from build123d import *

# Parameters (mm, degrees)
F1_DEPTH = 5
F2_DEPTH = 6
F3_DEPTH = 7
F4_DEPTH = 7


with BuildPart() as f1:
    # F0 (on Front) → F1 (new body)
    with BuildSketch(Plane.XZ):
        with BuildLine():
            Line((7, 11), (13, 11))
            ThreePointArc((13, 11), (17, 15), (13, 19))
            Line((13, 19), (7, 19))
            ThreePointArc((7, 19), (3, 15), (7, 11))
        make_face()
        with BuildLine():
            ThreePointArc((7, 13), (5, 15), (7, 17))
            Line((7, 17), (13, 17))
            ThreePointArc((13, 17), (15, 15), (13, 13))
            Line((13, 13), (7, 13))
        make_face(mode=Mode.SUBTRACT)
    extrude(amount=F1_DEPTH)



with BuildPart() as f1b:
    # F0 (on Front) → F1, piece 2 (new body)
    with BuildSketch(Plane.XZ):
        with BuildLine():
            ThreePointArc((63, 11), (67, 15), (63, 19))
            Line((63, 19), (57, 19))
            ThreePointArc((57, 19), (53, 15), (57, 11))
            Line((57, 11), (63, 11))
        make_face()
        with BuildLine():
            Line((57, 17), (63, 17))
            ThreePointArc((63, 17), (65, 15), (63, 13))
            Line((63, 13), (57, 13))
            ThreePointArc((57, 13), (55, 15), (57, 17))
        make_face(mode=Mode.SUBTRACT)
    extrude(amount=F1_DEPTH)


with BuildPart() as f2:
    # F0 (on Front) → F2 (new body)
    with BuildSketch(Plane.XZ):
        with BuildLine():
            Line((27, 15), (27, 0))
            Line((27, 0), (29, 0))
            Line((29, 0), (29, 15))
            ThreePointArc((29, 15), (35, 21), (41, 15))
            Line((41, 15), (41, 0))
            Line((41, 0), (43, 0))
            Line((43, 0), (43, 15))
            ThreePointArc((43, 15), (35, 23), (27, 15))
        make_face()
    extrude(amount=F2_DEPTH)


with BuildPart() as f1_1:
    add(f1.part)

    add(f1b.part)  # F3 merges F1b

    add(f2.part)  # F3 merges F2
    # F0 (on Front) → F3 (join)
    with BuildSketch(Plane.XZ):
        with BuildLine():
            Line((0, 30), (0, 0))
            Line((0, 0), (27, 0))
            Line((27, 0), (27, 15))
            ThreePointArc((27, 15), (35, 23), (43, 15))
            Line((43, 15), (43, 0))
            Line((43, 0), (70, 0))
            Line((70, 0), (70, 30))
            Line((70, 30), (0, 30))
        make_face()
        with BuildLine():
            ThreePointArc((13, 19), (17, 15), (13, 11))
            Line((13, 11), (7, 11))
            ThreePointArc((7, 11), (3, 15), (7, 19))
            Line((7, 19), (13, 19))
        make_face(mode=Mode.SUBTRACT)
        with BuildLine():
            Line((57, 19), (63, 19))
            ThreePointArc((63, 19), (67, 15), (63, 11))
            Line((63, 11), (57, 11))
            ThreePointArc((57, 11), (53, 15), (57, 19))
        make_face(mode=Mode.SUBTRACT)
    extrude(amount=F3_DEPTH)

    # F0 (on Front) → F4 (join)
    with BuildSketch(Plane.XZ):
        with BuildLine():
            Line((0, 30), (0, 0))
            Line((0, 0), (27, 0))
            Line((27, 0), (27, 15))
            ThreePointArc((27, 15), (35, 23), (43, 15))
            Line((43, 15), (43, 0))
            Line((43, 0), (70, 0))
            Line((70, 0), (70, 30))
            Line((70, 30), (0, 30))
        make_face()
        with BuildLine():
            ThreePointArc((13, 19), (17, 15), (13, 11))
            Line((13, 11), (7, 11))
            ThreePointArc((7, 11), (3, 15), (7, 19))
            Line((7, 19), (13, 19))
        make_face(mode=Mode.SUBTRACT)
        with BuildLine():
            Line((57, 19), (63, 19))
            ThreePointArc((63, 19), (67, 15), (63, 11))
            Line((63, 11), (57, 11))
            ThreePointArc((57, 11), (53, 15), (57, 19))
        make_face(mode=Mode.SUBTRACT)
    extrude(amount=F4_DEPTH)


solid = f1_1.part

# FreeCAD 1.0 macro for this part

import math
import FreeCAD as App
import Part
import Sketcher

V = App.Vector
Q = App.Units.Quantity

doc = App.newDocument("Part")
body = doc.addObject("PartDesign::Body", "Body")

# Sketch on XZ plane
sketch1 = body.newObject("Sketcher::SketchObject", "Sketch")
sketch1.AttachmentSupport = (doc.getObject("XZ_Plane"), [""])
sketch1.MapMode = "FlatFace"
sketch1.addGeometry(Part.LineSegment(V(7, 11, 0), V(13, 11, 0)), False)
sketch1.addGeometry(Part.ArcOfCircle(Part.Circle(V(13, 15, 0), V(0, 0, 1), 4), math.radians(-90), math.radians(90)), False)
sketch1.addGeometry(Part.LineSegment(V(13, 19, 0), V(7, 19, 0)), False)
sketch1.addGeometry(Part.ArcOfCircle(Part.Circle(V(7, 15, 0), V(0, 0, 1), 4), math.radians(90), math.radians(270)), False)
sketch1.addGeometry(Part.LineSegment(V(13, 13, 0), V(7, 13, 0)), False)
sketch1.addGeometry(Part.ArcOfCircle(Part.Circle(V(7, 15, 0), V(0, 0, 1), 2), math.radians(90), math.radians(270)), False)
sketch1.addGeometry(Part.LineSegment(V(7, 17, 0), V(13, 17, 0)), False)
sketch1.addGeometry(Part.ArcOfCircle(Part.Circle(V(13, 15, 0), V(0, 0, 1), 2), math.radians(-90), math.radians(90)), False)
sketch1.addConstraint(Sketcher.Constraint("Tangent", 0, 2, 1, 1))
sketch1.addConstraint(Sketcher.Constraint("Tangent", 1, 2, 2, 1))
sketch1.addConstraint(Sketcher.Constraint("Tangent", 2, 2, 3, 1))
sketch1.addConstraint(Sketcher.Constraint("Tangent", 3, 2, 0, 1))
sketch1.addConstraint(Sketcher.Constraint("Tangent", 4, 2, 5, 2))
sketch1.addConstraint(Sketcher.Constraint("Tangent", 5, 1, 6, 1))
sketch1.addConstraint(Sketcher.Constraint("Tangent", 6, 2, 7, 2))
sketch1.addConstraint(Sketcher.Constraint("Tangent", 7, 1, 4, 1))
sketch1.addConstraint(Sketcher.Constraint("Horizontal", 0))
sketch1.addConstraint(Sketcher.Constraint("Horizontal", 2))
sketch1.addConstraint(Sketcher.Constraint("Horizontal", 4))
sketch1.addConstraint(Sketcher.Constraint("Horizontal", 6))
sketch1.addConstraint(Sketcher.Constraint("Coincident", 5, 3, 3, 3))
sketch1.addConstraint(Sketcher.Constraint("Vertical", 7, 3, 0, 2))
sketch1.addConstraint(Sketcher.Constraint("Radius", 1, Q("4 mm")))
sketch1.addConstraint(Sketcher.Constraint("Radius", 5, Q("2 mm")))
sketch1.addConstraint(Sketcher.Constraint("DistanceX", 0, 1, 0, 2, Q("6 mm")))
sketch1.addConstraint(Sketcher.Constraint("DistanceX", -1, 1, 1, 3, Q("13 mm")))
sketch1.addConstraint(Sketcher.Constraint("DistanceY", -1, 1, 1, 3, Q("15 mm")))
pad1 = body.newObject("PartDesign::Pad", "Pad")
pad1.Profile = sketch1
pad1.Length = 5
body2 = doc.addObject("PartDesign::Body", "Body001")

# Sketch on XZ plane
sketch2 = body2.newObject("Sketcher::SketchObject", "Sketch001")
sketch2.AttachmentSupport = (doc.getObject("XZ_Plane001"), [""])
sketch2.MapMode = "FlatFace"
sketch2.addGeometry(Part.ArcOfCircle(Part.Circle(V(63, 15, 0), V(0, 0, 1), 4), math.radians(-90), math.radians(90)), False)
sketch2.addGeometry(Part.LineSegment(V(63, 19, 0), V(57, 19, 0)), False)
sketch2.addGeometry(Part.ArcOfCircle(Part.Circle(V(57, 15, 0), V(0, 0, 1), 4), math.radians(90), math.radians(270)), False)
sketch2.addGeometry(Part.LineSegment(V(57, 11, 0), V(63, 11, 0)), False)
sketch2.addGeometry(Part.ArcOfCircle(Part.Circle(V(57, 15, 0), V(0, 0, 1), 2), math.radians(90), math.radians(270)), False)
sketch2.addGeometry(Part.LineSegment(V(57, 17, 0), V(63, 17, 0)), False)
sketch2.addGeometry(Part.ArcOfCircle(Part.Circle(V(63, 15, 0), V(0, 0, 1), 2), math.radians(-90), math.radians(90)), False)
sketch2.addGeometry(Part.LineSegment(V(63, 13, 0), V(57, 13, 0)), False)
sketch2.addConstraint(Sketcher.Constraint("Tangent", 0, 2, 1, 1))
sketch2.addConstraint(Sketcher.Constraint("Tangent", 1, 2, 2, 1))
sketch2.addConstraint(Sketcher.Constraint("Tangent", 2, 2, 3, 1))
sketch2.addConstraint(Sketcher.Constraint("Tangent", 3, 2, 0, 1))
sketch2.addConstraint(Sketcher.Constraint("Tangent", 4, 1, 5, 1))
sketch2.addConstraint(Sketcher.Constraint("Tangent", 5, 2, 6, 2))
sketch2.addConstraint(Sketcher.Constraint("Tangent", 6, 1, 7, 1))
sketch2.addConstraint(Sketcher.Constraint("Tangent", 7, 2, 4, 2))
sketch2.addConstraint(Sketcher.Constraint("Horizontal", 1))
sketch2.addConstraint(Sketcher.Constraint("Horizontal", 3))
sketch2.addConstraint(Sketcher.Constraint("Horizontal", 5))
sketch2.addConstraint(Sketcher.Constraint("Horizontal", 7))
sketch2.addConstraint(Sketcher.Constraint("Coincident", 4, 3, 2, 3))
sketch2.addConstraint(Sketcher.Constraint("Vertical", 6, 3, 0, 2))
sketch2.addConstraint(Sketcher.Constraint("Radius", 0, Q("4 mm")))
sketch2.addConstraint(Sketcher.Constraint("Radius", 4, Q("2 mm")))
sketch2.addConstraint(Sketcher.Constraint("DistanceX", 1, 2, 1, 1, Q("6 mm")))
sketch2.addConstraint(Sketcher.Constraint("DistanceX", -1, 1, 0, 3, Q("63 mm")))
sketch2.addConstraint(Sketcher.Constraint("DistanceY", -1, 1, 0, 3, Q("15 mm")))
pad2 = body2.newObject("PartDesign::Pad", "Pad001")
pad2.Profile = sketch2
pad2.Length = 5
body3 = doc.addObject("PartDesign::Body", "Body002")

# Sketch on XZ plane
sketch3 = body3.newObject("Sketcher::SketchObject", "Sketch002")
sketch3.AttachmentSupport = (doc.getObject("XZ_Plane002"), [""])
sketch3.MapMode = "FlatFace"
sketch3.addGeometry(Part.LineSegment(V(27, 15, 0), V(27, 0, 0)), False)
sketch3.addGeometry(Part.LineSegment(V(27, 0, 0), V(29, 0, 0)), False)
sketch3.addGeometry(Part.LineSegment(V(29, 0, 0), V(29, 15, 0)), False)
sketch3.addGeometry(Part.ArcOfCircle(Part.Circle(V(35, 15, 0), V(0, 0, 1), 6), math.radians(0), math.radians(180)), False)
sketch3.addGeometry(Part.LineSegment(V(41, 15, 0), V(41, 0, 0)), False)
sketch3.addGeometry(Part.LineSegment(V(41, 0, 0), V(43, 0, 0)), False)
sketch3.addGeometry(Part.LineSegment(V(43, 0, 0), V(43, 15, 0)), False)
sketch3.addGeometry(Part.ArcOfCircle(Part.Circle(V(35, 15, 0), V(0, 0, 1), 8), math.radians(0), math.radians(180)), False)
sketch3.addConstraint(Sketcher.Constraint("Coincident", 0, 2, 1, 1))
sketch3.addConstraint(Sketcher.Constraint("Coincident", 1, 2, 2, 1))
sketch3.addConstraint(Sketcher.Constraint("Tangent", 2, 2, 3, 2))
sketch3.addConstraint(Sketcher.Constraint("Tangent", 3, 1, 4, 1))
sketch3.addConstraint(Sketcher.Constraint("Coincident", 4, 2, 5, 1))
sketch3.addConstraint(Sketcher.Constraint("Coincident", 5, 2, 6, 1))
sketch3.addConstraint(Sketcher.Constraint("Tangent", 6, 2, 7, 1))
sketch3.addConstraint(Sketcher.Constraint("Tangent", 7, 2, 0, 1))
sketch3.addConstraint(Sketcher.Constraint("Vertical", 0))
sketch3.addConstraint(Sketcher.Constraint("Horizontal", 1))
sketch3.addConstraint(Sketcher.Constraint("Vertical", 2))
sketch3.addConstraint(Sketcher.Constraint("Vertical", 4))
sketch3.addConstraint(Sketcher.Constraint("Horizontal", 5))
sketch3.addConstraint(Sketcher.Constraint("Vertical", 6))
sketch3.addConstraint(Sketcher.Constraint("Coincident", 7, 3, 3, 3))
sketch3.addConstraint(Sketcher.Constraint("PointOnObject", 0, 2, -1))
sketch3.addConstraint(Sketcher.Constraint("PointOnObject", 4, 2, -1))
sketch3.addConstraint(Sketcher.Constraint("Radius", 3, Q("6 mm")))
sketch3.addConstraint(Sketcher.Constraint("Radius", 7, Q("8 mm")))
sketch3.addConstraint(Sketcher.Constraint("DistanceY", 0, 2, 0, 1, Q("15 mm")))
sketch3.addConstraint(Sketcher.Constraint("DistanceX", -1, 1, 3, 3, Q("35 mm")))
pad3 = body3.newObject("PartDesign::Pad", "Pad002")
pad3.Profile = sketch3
pad3.Length = 6
body.AllowCompound = True
doc.recompute()

boolean = body.newObject("PartDesign::Boolean", "Boolean")
boolean.Type = "Fuse"
boolean.addObjects([body2])
doc.recompute()

boolean2 = body.newObject("PartDesign::Boolean", "Boolean001")
boolean2.Type = "Fuse"
boolean2.addObjects([body3])

# Sketch on XZ plane
sketch4 = body.newObject("Sketcher::SketchObject", "Sketch003")
sketch4.AttachmentSupport = (doc.getObject("XZ_Plane"), [""])
sketch4.MapMode = "FlatFace"
sketch4.addGeometry(Part.LineSegment(V(0, 30, 0), V(0, 0, 0)), False)
sketch4.addGeometry(Part.LineSegment(V(0, 0, 0), V(27, 0, 0)), False)
sketch4.addGeometry(Part.LineSegment(V(27, 0, 0), V(27, 15, 0)), False)
sketch4.addGeometry(Part.ArcOfCircle(Part.Circle(V(35, 15, 0), V(0, 0, 1), 8), math.radians(0), math.radians(180)), False)
sketch4.addGeometry(Part.LineSegment(V(43, 15, 0), V(43, 0, 0)), False)
sketch4.addGeometry(Part.LineSegment(V(43, 0, 0), V(70, 0, 0)), False)
sketch4.addGeometry(Part.LineSegment(V(70, 0, 0), V(70, 30, 0)), False)
sketch4.addGeometry(Part.LineSegment(V(70, 30, 0), V(0, 30, 0)), False)
sketch4.addGeometry(Part.LineSegment(V(7, 19, 0), V(13, 19, 0)), False)
sketch4.addGeometry(Part.ArcOfCircle(Part.Circle(V(13, 15, 0), V(0, 0, 1), 4), math.radians(-90), math.radians(90)), False)
sketch4.addGeometry(Part.LineSegment(V(13, 11, 0), V(7, 11, 0)), False)
sketch4.addGeometry(Part.ArcOfCircle(Part.Circle(V(7, 15, 0), V(0, 0, 1), 4), math.radians(90), math.radians(270)), False)
sketch4.addGeometry(Part.ArcOfCircle(Part.Circle(V(57, 15, 0), V(0, 0, 1), 4), math.radians(90), math.radians(270)), False)
sketch4.addGeometry(Part.LineSegment(V(57, 19, 0), V(63, 19, 0)), False)
sketch4.addGeometry(Part.ArcOfCircle(Part.Circle(V(63, 15, 0), V(0, 0, 1), 4), math.radians(-90), math.radians(90)), False)
sketch4.addGeometry(Part.LineSegment(V(63, 11, 0), V(57, 11, 0)), False)
sketch4.addConstraint(Sketcher.Constraint("Coincident", 0, 2, 1, 1))
sketch4.addConstraint(Sketcher.Constraint("Coincident", 1, 2, 2, 1))
sketch4.addConstraint(Sketcher.Constraint("Tangent", 2, 2, 3, 2))
sketch4.addConstraint(Sketcher.Constraint("Tangent", 3, 1, 4, 1))
sketch4.addConstraint(Sketcher.Constraint("Coincident", 4, 2, 5, 1))
sketch4.addConstraint(Sketcher.Constraint("Coincident", 5, 2, 6, 1))
sketch4.addConstraint(Sketcher.Constraint("Coincident", 6, 2, 7, 1))
sketch4.addConstraint(Sketcher.Constraint("Coincident", 7, 2, 0, 1))
sketch4.addConstraint(Sketcher.Constraint("Tangent", 8, 2, 9, 2))
sketch4.addConstraint(Sketcher.Constraint("Tangent", 9, 1, 10, 1))
sketch4.addConstraint(Sketcher.Constraint("Tangent", 10, 2, 11, 2))
sketch4.addConstraint(Sketcher.Constraint("Tangent", 11, 1, 8, 1))
sketch4.addConstraint(Sketcher.Constraint("Tangent", 12, 1, 13, 1))
sketch4.addConstraint(Sketcher.Constraint("Tangent", 13, 2, 14, 2))
sketch4.addConstraint(Sketcher.Constraint("Tangent", 14, 1, 15, 1))
sketch4.addConstraint(Sketcher.Constraint("Tangent", 15, 2, 12, 2))
sketch4.addConstraint(Sketcher.Constraint("Vertical", 0))
sketch4.addConstraint(Sketcher.Constraint("Horizontal", 1))
sketch4.addConstraint(Sketcher.Constraint("Vertical", 2))
sketch4.addConstraint(Sketcher.Constraint("Vertical", 4))
sketch4.addConstraint(Sketcher.Constraint("Horizontal", 5))
sketch4.addConstraint(Sketcher.Constraint("Vertical", 6))
sketch4.addConstraint(Sketcher.Constraint("Horizontal", 7))
sketch4.addConstraint(Sketcher.Constraint("Horizontal", 8))
sketch4.addConstraint(Sketcher.Constraint("Horizontal", 10))
sketch4.addConstraint(Sketcher.Constraint("Horizontal", 13))
sketch4.addConstraint(Sketcher.Constraint("Horizontal", 15))
sketch4.addConstraint(Sketcher.Constraint("Coincident", 0, 2, -1, 1))
sketch4.addConstraint(Sketcher.Constraint("Equal", 11, 12))
sketch4.addConstraint(Sketcher.Constraint("PointOnObject", 4, 2, -1))
sketch4.addConstraint(Sketcher.Constraint("Horizontal", 3, 3, 9, 3))
sketch4.addConstraint(Sketcher.Constraint("Horizontal", 11, 3, 12, 3))
sketch4.addConstraint(Sketcher.Constraint("Equal", 1, 5))
sketch4.addConstraint(Sketcher.Constraint("Equal", 10, 13))
sketch4.addConstraint(Sketcher.Constraint("Radius", 3, Q("8 mm")))
sketch4.addConstraint(Sketcher.Constraint("Radius", 9, Q("4 mm")))
sketch4.addConstraint(Sketcher.Constraint("DistanceX", 1, 1, 1, 2, Q("27 mm")))
sketch4.addConstraint(Sketcher.Constraint("DistanceX", 8, 1, 8, 2, Q("6 mm")))
sketch4.addConstraint(Sketcher.Constraint("DistanceY", 0, 2, 0, 1, Q("30 mm")))
sketch4.addConstraint(Sketcher.Constraint("DistanceY", 2, 1, 2, 2, Q("15 mm")))
sketch4.addConstraint(Sketcher.Constraint("DistanceX", -1, 1, 9, 3, Q("13 mm")))
sketch4.addConstraint(Sketcher.Constraint("DistanceX", -1, 1, 12, 3, Q("57 mm")))
pad4 = body.newObject("PartDesign::Pad", "Pad003")
pad4.Profile = sketch4
pad4.Length = 7

# Sketch on XZ plane
sketch5 = body.newObject("Sketcher::SketchObject", "Sketch004")
sketch5.AttachmentSupport = (doc.getObject("XZ_Plane"), [""])
sketch5.MapMode = "FlatFace"
sketch5.addGeometry(Part.LineSegment(V(0, 30, 0), V(0, 0, 0)), False)
sketch5.addGeometry(Part.LineSegment(V(0, 0, 0), V(27, 0, 0)), False)
sketch5.addGeometry(Part.LineSegment(V(27, 0, 0), V(27, 15, 0)), False)
sketch5.addGeometry(Part.ArcOfCircle(Part.Circle(V(35, 15, 0), V(0, 0, 1), 8), math.radians(0), math.radians(180)), False)
sketch5.addGeometry(Part.LineSegment(V(43, 15, 0), V(43, 0, 0)), False)
sketch5.addGeometry(Part.LineSegment(V(43, 0, 0), V(70, 0, 0)), False)
sketch5.addGeometry(Part.LineSegment(V(70, 0, 0), V(70, 30, 0)), False)
sketch5.addGeometry(Part.LineSegment(V(70, 30, 0), V(0, 30, 0)), False)
sketch5.addGeometry(Part.LineSegment(V(7, 19, 0), V(13, 19, 0)), False)
sketch5.addGeometry(Part.ArcOfCircle(Part.Circle(V(13, 15, 0), V(0, 0, 1), 4), math.radians(-90), math.radians(90)), False)
sketch5.addGeometry(Part.LineSegment(V(13, 11, 0), V(7, 11, 0)), False)
sketch5.addGeometry(Part.ArcOfCircle(Part.Circle(V(7, 15, 0), V(0, 0, 1), 4), math.radians(90), math.radians(270)), False)
sketch5.addGeometry(Part.ArcOfCircle(Part.Circle(V(57, 15, 0), V(0, 0, 1), 4), math.radians(90), math.radians(270)), False)
sketch5.addGeometry(Part.LineSegment(V(57, 19, 0), V(63, 19, 0)), False)
sketch5.addGeometry(Part.ArcOfCircle(Part.Circle(V(63, 15, 0), V(0, 0, 1), 4), math.radians(-90), math.radians(90)), False)
sketch5.addGeometry(Part.LineSegment(V(63, 11, 0), V(57, 11, 0)), False)
sketch5.addConstraint(Sketcher.Constraint("Coincident", 0, 2, 1, 1))
sketch5.addConstraint(Sketcher.Constraint("Coincident", 1, 2, 2, 1))
sketch5.addConstraint(Sketcher.Constraint("Tangent", 2, 2, 3, 2))
sketch5.addConstraint(Sketcher.Constraint("Tangent", 3, 1, 4, 1))
sketch5.addConstraint(Sketcher.Constraint("Coincident", 4, 2, 5, 1))
sketch5.addConstraint(Sketcher.Constraint("Coincident", 5, 2, 6, 1))
sketch5.addConstraint(Sketcher.Constraint("Coincident", 6, 2, 7, 1))
sketch5.addConstraint(Sketcher.Constraint("Coincident", 7, 2, 0, 1))
sketch5.addConstraint(Sketcher.Constraint("Tangent", 8, 2, 9, 2))
sketch5.addConstraint(Sketcher.Constraint("Tangent", 9, 1, 10, 1))
sketch5.addConstraint(Sketcher.Constraint("Tangent", 10, 2, 11, 2))
sketch5.addConstraint(Sketcher.Constraint("Tangent", 11, 1, 8, 1))
sketch5.addConstraint(Sketcher.Constraint("Tangent", 12, 1, 13, 1))
sketch5.addConstraint(Sketcher.Constraint("Tangent", 13, 2, 14, 2))
sketch5.addConstraint(Sketcher.Constraint("Tangent", 14, 1, 15, 1))
sketch5.addConstraint(Sketcher.Constraint("Tangent", 15, 2, 12, 2))
sketch5.addConstraint(Sketcher.Constraint("Vertical", 0))
sketch5.addConstraint(Sketcher.Constraint("Horizontal", 1))
sketch5.addConstraint(Sketcher.Constraint("Vertical", 2))
sketch5.addConstraint(Sketcher.Constraint("Vertical", 4))
sketch5.addConstraint(Sketcher.Constraint("Horizontal", 5))
sketch5.addConstraint(Sketcher.Constraint("Vertical", 6))
sketch5.addConstraint(Sketcher.Constraint("Horizontal", 7))
sketch5.addConstraint(Sketcher.Constraint("Horizontal", 8))
sketch5.addConstraint(Sketcher.Constraint("Horizontal", 10))
sketch5.addConstraint(Sketcher.Constraint("Horizontal", 13))
sketch5.addConstraint(Sketcher.Constraint("Horizontal", 15))
sketch5.addConstraint(Sketcher.Constraint("Coincident", 0, 2, -1, 1))
sketch5.addConstraint(Sketcher.Constraint("Equal", 11, 12))
sketch5.addConstraint(Sketcher.Constraint("PointOnObject", 4, 2, -1))
sketch5.addConstraint(Sketcher.Constraint("Horizontal", 3, 3, 9, 3))
sketch5.addConstraint(Sketcher.Constraint("Horizontal", 11, 3, 12, 3))
sketch5.addConstraint(Sketcher.Constraint("Equal", 1, 5))
sketch5.addConstraint(Sketcher.Constraint("Equal", 10, 13))
sketch5.addConstraint(Sketcher.Constraint("Radius", 3, Q("8 mm")))
sketch5.addConstraint(Sketcher.Constraint("Radius", 9, Q("4 mm")))
sketch5.addConstraint(Sketcher.Constraint("DistanceX", 1, 1, 1, 2, Q("27 mm")))
sketch5.addConstraint(Sketcher.Constraint("DistanceX", 8, 1, 8, 2, Q("6 mm")))
sketch5.addConstraint(Sketcher.Constraint("DistanceY", 0, 2, 0, 1, Q("30 mm")))
sketch5.addConstraint(Sketcher.Constraint("DistanceY", 2, 1, 2, 2, Q("15 mm")))
sketch5.addConstraint(Sketcher.Constraint("DistanceX", -1, 1, 9, 3, Q("13 mm")))
sketch5.addConstraint(Sketcher.Constraint("DistanceX", -1, 1, 12, 3, Q("57 mm")))
pad5 = body.newObject("PartDesign::Pad", "Pad004")
pad5.Profile = sketch5
pad5.Length = 7

doc.recompute()
